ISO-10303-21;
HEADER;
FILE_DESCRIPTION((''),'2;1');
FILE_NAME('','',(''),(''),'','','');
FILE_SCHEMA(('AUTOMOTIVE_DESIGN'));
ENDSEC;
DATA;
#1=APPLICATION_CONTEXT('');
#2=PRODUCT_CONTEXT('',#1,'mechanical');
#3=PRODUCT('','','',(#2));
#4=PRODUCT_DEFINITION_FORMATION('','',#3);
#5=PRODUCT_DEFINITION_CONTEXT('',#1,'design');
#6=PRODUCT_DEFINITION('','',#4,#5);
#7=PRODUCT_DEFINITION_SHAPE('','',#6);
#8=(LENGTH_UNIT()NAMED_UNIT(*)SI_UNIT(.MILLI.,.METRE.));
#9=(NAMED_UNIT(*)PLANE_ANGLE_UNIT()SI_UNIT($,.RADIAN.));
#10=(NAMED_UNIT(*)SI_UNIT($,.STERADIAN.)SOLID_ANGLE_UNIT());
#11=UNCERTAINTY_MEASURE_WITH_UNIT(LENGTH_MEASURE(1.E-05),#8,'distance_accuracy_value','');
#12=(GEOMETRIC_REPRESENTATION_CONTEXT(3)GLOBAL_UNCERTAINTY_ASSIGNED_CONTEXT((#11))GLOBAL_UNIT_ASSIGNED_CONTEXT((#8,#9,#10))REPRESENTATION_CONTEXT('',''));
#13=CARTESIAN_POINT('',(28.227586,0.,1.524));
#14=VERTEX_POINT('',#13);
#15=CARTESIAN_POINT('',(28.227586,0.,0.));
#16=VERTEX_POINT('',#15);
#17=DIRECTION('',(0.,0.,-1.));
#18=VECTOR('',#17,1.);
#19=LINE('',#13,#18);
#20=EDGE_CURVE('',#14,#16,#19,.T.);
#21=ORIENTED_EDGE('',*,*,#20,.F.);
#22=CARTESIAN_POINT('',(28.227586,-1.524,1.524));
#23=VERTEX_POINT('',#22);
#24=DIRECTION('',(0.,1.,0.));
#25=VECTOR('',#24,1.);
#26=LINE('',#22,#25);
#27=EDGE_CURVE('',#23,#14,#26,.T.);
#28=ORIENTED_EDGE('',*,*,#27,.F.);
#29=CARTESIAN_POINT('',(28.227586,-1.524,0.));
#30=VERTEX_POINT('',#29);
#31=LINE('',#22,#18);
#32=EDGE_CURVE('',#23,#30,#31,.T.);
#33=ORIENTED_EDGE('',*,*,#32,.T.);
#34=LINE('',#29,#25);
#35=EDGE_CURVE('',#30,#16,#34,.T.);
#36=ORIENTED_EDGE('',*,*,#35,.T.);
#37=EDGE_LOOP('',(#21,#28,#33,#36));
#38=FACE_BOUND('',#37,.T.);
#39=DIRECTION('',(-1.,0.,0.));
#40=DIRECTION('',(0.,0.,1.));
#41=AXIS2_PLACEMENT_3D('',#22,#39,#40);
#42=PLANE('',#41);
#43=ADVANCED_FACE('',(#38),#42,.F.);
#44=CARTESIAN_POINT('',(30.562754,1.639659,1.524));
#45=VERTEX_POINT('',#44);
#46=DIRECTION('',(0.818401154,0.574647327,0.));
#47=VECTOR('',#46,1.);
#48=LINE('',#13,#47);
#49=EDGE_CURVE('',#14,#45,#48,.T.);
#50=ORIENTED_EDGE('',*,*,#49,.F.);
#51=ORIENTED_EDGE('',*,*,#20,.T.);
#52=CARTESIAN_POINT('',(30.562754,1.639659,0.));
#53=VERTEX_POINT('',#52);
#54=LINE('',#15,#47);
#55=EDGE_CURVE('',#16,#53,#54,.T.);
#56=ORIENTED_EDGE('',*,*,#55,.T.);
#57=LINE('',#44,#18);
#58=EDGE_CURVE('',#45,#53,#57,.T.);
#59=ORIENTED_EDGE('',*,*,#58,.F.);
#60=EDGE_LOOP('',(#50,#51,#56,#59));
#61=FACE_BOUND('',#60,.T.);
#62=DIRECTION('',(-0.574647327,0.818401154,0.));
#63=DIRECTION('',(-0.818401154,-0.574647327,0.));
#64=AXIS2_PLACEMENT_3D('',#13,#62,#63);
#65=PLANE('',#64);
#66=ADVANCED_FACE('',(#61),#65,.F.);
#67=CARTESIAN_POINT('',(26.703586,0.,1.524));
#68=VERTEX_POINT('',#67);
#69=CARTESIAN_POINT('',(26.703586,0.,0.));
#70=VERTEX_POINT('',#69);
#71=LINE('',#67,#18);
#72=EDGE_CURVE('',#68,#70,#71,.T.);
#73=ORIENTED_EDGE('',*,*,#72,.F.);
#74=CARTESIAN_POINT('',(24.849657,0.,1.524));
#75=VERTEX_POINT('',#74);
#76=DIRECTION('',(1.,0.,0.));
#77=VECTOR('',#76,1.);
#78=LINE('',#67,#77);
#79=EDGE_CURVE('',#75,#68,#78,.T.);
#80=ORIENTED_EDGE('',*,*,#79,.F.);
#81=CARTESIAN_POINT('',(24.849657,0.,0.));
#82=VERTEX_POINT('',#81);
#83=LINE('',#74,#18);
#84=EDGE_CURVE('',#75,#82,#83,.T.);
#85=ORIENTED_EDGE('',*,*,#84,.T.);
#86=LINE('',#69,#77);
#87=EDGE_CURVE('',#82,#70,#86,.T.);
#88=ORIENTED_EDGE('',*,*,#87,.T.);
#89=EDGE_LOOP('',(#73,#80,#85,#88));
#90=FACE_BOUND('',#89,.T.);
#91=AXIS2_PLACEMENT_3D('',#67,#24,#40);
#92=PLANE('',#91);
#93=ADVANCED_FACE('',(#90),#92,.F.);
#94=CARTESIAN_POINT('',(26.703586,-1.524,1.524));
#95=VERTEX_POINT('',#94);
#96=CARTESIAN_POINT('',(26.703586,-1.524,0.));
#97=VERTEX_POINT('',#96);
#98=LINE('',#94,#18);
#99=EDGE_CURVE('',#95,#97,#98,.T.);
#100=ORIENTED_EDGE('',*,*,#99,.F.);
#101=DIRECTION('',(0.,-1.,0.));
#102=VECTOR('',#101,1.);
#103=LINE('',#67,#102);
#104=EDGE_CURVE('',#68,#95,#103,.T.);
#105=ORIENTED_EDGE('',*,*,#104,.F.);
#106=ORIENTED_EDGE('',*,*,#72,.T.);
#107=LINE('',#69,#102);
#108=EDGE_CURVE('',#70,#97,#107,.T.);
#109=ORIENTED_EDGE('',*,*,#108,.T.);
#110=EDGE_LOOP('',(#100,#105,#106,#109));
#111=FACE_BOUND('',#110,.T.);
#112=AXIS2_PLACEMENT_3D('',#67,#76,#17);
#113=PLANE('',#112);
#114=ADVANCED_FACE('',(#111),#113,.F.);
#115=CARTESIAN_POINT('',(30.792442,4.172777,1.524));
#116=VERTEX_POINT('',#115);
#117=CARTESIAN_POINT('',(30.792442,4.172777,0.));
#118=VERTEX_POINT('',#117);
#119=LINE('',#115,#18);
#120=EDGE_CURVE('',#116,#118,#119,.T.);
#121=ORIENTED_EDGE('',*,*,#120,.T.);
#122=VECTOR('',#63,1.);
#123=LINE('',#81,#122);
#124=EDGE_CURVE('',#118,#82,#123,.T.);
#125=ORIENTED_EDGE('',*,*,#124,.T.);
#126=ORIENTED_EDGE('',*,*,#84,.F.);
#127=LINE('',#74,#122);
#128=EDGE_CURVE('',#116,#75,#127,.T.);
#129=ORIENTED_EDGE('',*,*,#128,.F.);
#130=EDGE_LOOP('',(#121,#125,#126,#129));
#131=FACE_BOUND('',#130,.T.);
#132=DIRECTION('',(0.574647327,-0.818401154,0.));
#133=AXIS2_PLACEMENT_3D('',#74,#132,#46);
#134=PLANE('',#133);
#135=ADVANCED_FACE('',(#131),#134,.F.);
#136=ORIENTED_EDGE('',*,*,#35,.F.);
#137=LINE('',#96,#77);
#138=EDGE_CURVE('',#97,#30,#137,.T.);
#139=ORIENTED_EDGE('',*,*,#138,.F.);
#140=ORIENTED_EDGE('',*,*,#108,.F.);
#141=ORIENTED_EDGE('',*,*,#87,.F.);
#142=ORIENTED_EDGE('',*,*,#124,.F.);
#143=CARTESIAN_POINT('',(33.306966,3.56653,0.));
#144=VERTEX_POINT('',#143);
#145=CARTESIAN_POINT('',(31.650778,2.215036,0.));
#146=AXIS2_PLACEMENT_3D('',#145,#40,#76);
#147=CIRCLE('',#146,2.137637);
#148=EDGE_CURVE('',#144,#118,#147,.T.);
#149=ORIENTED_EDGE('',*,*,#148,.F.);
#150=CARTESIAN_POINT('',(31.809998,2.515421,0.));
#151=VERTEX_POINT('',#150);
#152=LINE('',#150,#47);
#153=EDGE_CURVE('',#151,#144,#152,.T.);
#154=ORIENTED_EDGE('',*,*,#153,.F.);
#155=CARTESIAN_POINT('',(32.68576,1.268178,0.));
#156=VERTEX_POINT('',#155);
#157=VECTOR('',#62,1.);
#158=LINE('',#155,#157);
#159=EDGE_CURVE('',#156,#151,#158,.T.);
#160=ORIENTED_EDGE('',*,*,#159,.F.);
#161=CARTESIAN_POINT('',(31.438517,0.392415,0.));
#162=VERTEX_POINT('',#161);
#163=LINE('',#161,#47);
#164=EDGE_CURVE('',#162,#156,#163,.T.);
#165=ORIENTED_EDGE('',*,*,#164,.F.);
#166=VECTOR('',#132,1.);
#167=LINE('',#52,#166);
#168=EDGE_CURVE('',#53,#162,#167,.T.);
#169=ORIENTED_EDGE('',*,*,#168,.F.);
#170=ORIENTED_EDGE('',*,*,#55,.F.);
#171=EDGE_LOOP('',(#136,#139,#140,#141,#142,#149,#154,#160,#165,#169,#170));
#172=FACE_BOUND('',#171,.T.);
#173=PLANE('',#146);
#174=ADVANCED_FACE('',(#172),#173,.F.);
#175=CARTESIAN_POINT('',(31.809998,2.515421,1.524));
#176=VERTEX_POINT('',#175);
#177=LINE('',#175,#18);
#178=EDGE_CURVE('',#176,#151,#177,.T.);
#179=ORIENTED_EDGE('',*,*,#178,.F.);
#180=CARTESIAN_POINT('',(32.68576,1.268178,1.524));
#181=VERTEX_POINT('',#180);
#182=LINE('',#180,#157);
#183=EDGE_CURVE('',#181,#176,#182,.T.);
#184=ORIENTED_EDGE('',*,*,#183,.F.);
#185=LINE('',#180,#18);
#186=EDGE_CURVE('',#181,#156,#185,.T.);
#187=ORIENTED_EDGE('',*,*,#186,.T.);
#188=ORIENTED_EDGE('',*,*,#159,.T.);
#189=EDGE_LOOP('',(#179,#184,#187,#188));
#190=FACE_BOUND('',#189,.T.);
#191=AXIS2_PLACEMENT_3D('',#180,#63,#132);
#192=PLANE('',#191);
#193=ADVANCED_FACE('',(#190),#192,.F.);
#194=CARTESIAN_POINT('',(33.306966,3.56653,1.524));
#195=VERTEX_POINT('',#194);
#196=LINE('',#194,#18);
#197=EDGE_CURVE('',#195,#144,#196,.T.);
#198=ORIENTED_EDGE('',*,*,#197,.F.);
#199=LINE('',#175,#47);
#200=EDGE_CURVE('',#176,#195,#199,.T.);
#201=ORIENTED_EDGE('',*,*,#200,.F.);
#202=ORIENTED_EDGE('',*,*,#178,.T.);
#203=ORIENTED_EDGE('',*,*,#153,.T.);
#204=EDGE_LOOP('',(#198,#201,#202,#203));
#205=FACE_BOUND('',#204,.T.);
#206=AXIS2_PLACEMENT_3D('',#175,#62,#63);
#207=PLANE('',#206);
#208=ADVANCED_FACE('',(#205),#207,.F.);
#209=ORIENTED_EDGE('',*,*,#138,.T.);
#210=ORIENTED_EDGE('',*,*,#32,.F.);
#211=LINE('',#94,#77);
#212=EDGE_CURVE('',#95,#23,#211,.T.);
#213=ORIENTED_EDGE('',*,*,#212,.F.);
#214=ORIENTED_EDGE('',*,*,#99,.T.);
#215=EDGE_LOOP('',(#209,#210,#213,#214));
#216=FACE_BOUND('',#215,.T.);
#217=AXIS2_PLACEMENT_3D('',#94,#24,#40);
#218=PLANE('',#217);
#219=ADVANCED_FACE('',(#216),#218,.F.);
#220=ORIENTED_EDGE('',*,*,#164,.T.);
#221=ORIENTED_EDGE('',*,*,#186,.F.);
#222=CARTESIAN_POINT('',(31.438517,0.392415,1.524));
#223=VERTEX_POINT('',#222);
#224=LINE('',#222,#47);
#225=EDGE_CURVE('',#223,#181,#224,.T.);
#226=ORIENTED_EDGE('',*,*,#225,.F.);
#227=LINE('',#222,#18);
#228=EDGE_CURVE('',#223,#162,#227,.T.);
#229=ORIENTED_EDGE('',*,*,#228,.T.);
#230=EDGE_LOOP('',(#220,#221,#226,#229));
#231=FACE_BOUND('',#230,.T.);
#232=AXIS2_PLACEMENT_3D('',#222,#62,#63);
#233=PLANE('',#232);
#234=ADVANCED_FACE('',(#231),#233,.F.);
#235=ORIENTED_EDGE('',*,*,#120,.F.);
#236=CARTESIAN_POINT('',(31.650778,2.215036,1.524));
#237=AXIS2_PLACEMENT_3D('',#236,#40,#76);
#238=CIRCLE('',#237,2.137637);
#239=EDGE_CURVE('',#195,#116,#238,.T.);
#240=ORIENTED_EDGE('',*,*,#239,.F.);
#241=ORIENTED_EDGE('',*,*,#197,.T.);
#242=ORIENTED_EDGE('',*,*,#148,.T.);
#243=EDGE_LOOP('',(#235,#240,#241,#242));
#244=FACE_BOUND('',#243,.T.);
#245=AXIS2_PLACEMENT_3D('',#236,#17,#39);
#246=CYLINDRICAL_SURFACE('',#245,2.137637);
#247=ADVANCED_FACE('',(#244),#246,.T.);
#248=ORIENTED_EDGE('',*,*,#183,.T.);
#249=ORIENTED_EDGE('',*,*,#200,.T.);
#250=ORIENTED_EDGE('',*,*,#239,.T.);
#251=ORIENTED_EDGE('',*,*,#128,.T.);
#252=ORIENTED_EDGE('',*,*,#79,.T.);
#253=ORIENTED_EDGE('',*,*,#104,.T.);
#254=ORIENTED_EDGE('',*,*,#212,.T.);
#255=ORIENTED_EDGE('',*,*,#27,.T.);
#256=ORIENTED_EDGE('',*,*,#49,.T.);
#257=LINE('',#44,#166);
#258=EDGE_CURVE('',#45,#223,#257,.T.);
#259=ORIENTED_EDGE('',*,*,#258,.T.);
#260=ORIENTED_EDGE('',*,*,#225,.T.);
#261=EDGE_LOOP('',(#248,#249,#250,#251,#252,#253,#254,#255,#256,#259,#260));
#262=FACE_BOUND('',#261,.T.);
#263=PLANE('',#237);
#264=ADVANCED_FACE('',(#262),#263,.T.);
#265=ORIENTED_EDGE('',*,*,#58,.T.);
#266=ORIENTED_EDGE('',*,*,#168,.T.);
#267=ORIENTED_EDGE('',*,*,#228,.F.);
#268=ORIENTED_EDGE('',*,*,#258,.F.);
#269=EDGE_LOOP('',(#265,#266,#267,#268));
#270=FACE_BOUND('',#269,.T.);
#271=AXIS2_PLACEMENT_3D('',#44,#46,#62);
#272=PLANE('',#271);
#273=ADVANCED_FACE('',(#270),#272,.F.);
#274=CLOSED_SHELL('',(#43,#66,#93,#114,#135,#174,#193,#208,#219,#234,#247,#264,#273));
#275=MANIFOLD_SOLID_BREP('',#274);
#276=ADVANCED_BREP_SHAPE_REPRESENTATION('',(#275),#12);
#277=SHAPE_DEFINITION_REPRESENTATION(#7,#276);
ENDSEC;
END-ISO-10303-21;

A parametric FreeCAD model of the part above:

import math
import FreeCAD as App
import Part
import Sketcher
from FreeCAD import Vector
Q = App.Units.Quantity

doc = App.newDocument("Part")
params = doc.addObject("Spreadsheet::Sheet", "Params")
for row, (alias, value) in enumerate([
    ("sketch1_width", "0.06 in"),
    ("sketch1_length", "0.06 in"),
    ("pad1_length", "0.06 in"),
], start=1):
    params.set(f"A{row}", alias)
    params.set(f"B{row}", "=" + value)
    params.setAlias(f"B{row}", alias)

body = doc.addObject("PartDesign::Body", "Body")

# Sketch on XY plane
sketch1 = doc.addObject("Sketcher::SketchObject", "Sketch")
body.addObject(sketch1)
sketch1.AttachmentSupport = (doc.XY_Plane, [""])
sketch1.MapMode = "FlatFace"
sketch1.addGeometry([
    Part.LineSegment(Vector(26.7, 0, 0), Vector(26.7, -1.5, 0)),  # 0
    Part.LineSegment(Vector(26.7, -1.5, 0), Vector(28.2, -1.5, 0)),  # 1
    Part.LineSegment(Vector(28.2, -1.5, 0), Vector(28.2, 0, 0)),  # 2
    Part.LineSegment(Vector(28.2, 0, 0), Vector(30.6, 1.6, 0)),  # 3
    Part.LineSegment(Vector(30.6, 1.6, 0), Vector(31.4, 0.4, 0)),  # 4
    Part.LineSegment(Vector(31.4, 0.4, 0), Vector(32.7, 1.3, 0)),  # 5
    Part.LineSegment(Vector(32.7, 1.3, 0), Vector(31.8, 2.5, 0)),  # 6
    Part.LineSegment(Vector(31.8, 2.5, 0), Vector(33.3, 3.6, 0)),  # 7
    Part.ArcOfCircle(Part.Circle(Vector(31.7, 2.2, 0), Vector(0, 0, 1), 2.1), math.radians(39), math.radians(114)),  # 8
    Part.LineSegment(Vector(30.8, 4.2, 0), Vector(24.8, 0, 0)),  # 9
    Part.LineSegment(Vector(24.8, 0, 0), Vector(26.7, 0, 0)),  # 10
], False)
sketch1.addConstraint([
    Sketcher.Constraint("Coincident", 0, 2, 1, 1),
    Sketcher.Constraint("Coincident", 1, 2, 2, 1),
    Sketcher.Constraint("Coincident", 2, 2, 3, 1),
    Sketcher.Constraint("Coincident", 3, 2, 4, 1),
    Sketcher.Constraint("Coincident", 4, 2, 5, 1),
    Sketcher.Constraint("Coincident", 5, 2, 6, 1),
    Sketcher.Constraint("Coincident", 6, 2, 7, 1),
    Sketcher.Constraint("Coincident", 7, 2, 8, 1),
    Sketcher.Constraint("Coincident", 8, 2, 9, 1),
    Sketcher.Constraint("Coincident", 9, 2, 10, 1),
    Sketcher.Constraint("Coincident", 10, 2, 0, 1),
    Sketcher.Constraint("Vertical", 0),
    Sketcher.Constraint("Horizontal", 1),
    Sketcher.Constraint("Vertical", 2),
    Sketcher.Constraint("Horizontal", 10),
    Sketcher.Constraint("PointOnObject", 2, 2, -1),
    Sketcher.Constraint("PointOnObject", 9, 2, -1),
    Sketcher.Constraint("Perpendicular", 3, 4),
    Sketcher.Constraint("Perpendicular", 4, 5),
    Sketcher.Constraint("Perpendicular", 5, 6),
    Sketcher.Constraint("Perpendicular", 6, 7),
    Sketcher.Constraint("Parallel", 7, 9),
    Sketcher.Constraint("Equal", 1, 0),
    Sketcher.Constraint("Equal", 4, 5),
    Sketcher.Constraint("Equal", 5, 6),
    Sketcher.Constraint("DistanceX", 1, 1, 1, 2, Q("0.06 in")),
    Sketcher.Constraint("Distance", 4, Q("0.06 in")),
    Sketcher.Constraint("Radius", 8, 2.137637),
    Sketcher.Constraint("DistanceX", 10, 1, 10, 2, 1.853929),
    Sketcher.Constraint("DistanceY", 5, 2, 8, 2, 2.9046),
    Sketcher.Constraint("Distance", 3, 2.85333),
    Sketcher.Constraint("DistanceX", -1, 1, 8, 3, 31.650778),
    Sketcher.Constraint("DistanceY", -1, 1, 3, 2, 1.639659),
    Sketcher.Constraint("DistanceX", -1, 1, 5, 2, 32.68576),
])
sketch1.setExpression("Constraints[25]", "Params.sketch1_width")
sketch1.setExpression("Constraints[26]", "Params.sketch1_length")
pad1 = doc.addObject("PartDesign::Pad", "Pad")
body.addObject(pad1)
pad1.Profile = sketch1
pad1.setExpression("Length", "Params.pad1_length")

doc.recompute()
